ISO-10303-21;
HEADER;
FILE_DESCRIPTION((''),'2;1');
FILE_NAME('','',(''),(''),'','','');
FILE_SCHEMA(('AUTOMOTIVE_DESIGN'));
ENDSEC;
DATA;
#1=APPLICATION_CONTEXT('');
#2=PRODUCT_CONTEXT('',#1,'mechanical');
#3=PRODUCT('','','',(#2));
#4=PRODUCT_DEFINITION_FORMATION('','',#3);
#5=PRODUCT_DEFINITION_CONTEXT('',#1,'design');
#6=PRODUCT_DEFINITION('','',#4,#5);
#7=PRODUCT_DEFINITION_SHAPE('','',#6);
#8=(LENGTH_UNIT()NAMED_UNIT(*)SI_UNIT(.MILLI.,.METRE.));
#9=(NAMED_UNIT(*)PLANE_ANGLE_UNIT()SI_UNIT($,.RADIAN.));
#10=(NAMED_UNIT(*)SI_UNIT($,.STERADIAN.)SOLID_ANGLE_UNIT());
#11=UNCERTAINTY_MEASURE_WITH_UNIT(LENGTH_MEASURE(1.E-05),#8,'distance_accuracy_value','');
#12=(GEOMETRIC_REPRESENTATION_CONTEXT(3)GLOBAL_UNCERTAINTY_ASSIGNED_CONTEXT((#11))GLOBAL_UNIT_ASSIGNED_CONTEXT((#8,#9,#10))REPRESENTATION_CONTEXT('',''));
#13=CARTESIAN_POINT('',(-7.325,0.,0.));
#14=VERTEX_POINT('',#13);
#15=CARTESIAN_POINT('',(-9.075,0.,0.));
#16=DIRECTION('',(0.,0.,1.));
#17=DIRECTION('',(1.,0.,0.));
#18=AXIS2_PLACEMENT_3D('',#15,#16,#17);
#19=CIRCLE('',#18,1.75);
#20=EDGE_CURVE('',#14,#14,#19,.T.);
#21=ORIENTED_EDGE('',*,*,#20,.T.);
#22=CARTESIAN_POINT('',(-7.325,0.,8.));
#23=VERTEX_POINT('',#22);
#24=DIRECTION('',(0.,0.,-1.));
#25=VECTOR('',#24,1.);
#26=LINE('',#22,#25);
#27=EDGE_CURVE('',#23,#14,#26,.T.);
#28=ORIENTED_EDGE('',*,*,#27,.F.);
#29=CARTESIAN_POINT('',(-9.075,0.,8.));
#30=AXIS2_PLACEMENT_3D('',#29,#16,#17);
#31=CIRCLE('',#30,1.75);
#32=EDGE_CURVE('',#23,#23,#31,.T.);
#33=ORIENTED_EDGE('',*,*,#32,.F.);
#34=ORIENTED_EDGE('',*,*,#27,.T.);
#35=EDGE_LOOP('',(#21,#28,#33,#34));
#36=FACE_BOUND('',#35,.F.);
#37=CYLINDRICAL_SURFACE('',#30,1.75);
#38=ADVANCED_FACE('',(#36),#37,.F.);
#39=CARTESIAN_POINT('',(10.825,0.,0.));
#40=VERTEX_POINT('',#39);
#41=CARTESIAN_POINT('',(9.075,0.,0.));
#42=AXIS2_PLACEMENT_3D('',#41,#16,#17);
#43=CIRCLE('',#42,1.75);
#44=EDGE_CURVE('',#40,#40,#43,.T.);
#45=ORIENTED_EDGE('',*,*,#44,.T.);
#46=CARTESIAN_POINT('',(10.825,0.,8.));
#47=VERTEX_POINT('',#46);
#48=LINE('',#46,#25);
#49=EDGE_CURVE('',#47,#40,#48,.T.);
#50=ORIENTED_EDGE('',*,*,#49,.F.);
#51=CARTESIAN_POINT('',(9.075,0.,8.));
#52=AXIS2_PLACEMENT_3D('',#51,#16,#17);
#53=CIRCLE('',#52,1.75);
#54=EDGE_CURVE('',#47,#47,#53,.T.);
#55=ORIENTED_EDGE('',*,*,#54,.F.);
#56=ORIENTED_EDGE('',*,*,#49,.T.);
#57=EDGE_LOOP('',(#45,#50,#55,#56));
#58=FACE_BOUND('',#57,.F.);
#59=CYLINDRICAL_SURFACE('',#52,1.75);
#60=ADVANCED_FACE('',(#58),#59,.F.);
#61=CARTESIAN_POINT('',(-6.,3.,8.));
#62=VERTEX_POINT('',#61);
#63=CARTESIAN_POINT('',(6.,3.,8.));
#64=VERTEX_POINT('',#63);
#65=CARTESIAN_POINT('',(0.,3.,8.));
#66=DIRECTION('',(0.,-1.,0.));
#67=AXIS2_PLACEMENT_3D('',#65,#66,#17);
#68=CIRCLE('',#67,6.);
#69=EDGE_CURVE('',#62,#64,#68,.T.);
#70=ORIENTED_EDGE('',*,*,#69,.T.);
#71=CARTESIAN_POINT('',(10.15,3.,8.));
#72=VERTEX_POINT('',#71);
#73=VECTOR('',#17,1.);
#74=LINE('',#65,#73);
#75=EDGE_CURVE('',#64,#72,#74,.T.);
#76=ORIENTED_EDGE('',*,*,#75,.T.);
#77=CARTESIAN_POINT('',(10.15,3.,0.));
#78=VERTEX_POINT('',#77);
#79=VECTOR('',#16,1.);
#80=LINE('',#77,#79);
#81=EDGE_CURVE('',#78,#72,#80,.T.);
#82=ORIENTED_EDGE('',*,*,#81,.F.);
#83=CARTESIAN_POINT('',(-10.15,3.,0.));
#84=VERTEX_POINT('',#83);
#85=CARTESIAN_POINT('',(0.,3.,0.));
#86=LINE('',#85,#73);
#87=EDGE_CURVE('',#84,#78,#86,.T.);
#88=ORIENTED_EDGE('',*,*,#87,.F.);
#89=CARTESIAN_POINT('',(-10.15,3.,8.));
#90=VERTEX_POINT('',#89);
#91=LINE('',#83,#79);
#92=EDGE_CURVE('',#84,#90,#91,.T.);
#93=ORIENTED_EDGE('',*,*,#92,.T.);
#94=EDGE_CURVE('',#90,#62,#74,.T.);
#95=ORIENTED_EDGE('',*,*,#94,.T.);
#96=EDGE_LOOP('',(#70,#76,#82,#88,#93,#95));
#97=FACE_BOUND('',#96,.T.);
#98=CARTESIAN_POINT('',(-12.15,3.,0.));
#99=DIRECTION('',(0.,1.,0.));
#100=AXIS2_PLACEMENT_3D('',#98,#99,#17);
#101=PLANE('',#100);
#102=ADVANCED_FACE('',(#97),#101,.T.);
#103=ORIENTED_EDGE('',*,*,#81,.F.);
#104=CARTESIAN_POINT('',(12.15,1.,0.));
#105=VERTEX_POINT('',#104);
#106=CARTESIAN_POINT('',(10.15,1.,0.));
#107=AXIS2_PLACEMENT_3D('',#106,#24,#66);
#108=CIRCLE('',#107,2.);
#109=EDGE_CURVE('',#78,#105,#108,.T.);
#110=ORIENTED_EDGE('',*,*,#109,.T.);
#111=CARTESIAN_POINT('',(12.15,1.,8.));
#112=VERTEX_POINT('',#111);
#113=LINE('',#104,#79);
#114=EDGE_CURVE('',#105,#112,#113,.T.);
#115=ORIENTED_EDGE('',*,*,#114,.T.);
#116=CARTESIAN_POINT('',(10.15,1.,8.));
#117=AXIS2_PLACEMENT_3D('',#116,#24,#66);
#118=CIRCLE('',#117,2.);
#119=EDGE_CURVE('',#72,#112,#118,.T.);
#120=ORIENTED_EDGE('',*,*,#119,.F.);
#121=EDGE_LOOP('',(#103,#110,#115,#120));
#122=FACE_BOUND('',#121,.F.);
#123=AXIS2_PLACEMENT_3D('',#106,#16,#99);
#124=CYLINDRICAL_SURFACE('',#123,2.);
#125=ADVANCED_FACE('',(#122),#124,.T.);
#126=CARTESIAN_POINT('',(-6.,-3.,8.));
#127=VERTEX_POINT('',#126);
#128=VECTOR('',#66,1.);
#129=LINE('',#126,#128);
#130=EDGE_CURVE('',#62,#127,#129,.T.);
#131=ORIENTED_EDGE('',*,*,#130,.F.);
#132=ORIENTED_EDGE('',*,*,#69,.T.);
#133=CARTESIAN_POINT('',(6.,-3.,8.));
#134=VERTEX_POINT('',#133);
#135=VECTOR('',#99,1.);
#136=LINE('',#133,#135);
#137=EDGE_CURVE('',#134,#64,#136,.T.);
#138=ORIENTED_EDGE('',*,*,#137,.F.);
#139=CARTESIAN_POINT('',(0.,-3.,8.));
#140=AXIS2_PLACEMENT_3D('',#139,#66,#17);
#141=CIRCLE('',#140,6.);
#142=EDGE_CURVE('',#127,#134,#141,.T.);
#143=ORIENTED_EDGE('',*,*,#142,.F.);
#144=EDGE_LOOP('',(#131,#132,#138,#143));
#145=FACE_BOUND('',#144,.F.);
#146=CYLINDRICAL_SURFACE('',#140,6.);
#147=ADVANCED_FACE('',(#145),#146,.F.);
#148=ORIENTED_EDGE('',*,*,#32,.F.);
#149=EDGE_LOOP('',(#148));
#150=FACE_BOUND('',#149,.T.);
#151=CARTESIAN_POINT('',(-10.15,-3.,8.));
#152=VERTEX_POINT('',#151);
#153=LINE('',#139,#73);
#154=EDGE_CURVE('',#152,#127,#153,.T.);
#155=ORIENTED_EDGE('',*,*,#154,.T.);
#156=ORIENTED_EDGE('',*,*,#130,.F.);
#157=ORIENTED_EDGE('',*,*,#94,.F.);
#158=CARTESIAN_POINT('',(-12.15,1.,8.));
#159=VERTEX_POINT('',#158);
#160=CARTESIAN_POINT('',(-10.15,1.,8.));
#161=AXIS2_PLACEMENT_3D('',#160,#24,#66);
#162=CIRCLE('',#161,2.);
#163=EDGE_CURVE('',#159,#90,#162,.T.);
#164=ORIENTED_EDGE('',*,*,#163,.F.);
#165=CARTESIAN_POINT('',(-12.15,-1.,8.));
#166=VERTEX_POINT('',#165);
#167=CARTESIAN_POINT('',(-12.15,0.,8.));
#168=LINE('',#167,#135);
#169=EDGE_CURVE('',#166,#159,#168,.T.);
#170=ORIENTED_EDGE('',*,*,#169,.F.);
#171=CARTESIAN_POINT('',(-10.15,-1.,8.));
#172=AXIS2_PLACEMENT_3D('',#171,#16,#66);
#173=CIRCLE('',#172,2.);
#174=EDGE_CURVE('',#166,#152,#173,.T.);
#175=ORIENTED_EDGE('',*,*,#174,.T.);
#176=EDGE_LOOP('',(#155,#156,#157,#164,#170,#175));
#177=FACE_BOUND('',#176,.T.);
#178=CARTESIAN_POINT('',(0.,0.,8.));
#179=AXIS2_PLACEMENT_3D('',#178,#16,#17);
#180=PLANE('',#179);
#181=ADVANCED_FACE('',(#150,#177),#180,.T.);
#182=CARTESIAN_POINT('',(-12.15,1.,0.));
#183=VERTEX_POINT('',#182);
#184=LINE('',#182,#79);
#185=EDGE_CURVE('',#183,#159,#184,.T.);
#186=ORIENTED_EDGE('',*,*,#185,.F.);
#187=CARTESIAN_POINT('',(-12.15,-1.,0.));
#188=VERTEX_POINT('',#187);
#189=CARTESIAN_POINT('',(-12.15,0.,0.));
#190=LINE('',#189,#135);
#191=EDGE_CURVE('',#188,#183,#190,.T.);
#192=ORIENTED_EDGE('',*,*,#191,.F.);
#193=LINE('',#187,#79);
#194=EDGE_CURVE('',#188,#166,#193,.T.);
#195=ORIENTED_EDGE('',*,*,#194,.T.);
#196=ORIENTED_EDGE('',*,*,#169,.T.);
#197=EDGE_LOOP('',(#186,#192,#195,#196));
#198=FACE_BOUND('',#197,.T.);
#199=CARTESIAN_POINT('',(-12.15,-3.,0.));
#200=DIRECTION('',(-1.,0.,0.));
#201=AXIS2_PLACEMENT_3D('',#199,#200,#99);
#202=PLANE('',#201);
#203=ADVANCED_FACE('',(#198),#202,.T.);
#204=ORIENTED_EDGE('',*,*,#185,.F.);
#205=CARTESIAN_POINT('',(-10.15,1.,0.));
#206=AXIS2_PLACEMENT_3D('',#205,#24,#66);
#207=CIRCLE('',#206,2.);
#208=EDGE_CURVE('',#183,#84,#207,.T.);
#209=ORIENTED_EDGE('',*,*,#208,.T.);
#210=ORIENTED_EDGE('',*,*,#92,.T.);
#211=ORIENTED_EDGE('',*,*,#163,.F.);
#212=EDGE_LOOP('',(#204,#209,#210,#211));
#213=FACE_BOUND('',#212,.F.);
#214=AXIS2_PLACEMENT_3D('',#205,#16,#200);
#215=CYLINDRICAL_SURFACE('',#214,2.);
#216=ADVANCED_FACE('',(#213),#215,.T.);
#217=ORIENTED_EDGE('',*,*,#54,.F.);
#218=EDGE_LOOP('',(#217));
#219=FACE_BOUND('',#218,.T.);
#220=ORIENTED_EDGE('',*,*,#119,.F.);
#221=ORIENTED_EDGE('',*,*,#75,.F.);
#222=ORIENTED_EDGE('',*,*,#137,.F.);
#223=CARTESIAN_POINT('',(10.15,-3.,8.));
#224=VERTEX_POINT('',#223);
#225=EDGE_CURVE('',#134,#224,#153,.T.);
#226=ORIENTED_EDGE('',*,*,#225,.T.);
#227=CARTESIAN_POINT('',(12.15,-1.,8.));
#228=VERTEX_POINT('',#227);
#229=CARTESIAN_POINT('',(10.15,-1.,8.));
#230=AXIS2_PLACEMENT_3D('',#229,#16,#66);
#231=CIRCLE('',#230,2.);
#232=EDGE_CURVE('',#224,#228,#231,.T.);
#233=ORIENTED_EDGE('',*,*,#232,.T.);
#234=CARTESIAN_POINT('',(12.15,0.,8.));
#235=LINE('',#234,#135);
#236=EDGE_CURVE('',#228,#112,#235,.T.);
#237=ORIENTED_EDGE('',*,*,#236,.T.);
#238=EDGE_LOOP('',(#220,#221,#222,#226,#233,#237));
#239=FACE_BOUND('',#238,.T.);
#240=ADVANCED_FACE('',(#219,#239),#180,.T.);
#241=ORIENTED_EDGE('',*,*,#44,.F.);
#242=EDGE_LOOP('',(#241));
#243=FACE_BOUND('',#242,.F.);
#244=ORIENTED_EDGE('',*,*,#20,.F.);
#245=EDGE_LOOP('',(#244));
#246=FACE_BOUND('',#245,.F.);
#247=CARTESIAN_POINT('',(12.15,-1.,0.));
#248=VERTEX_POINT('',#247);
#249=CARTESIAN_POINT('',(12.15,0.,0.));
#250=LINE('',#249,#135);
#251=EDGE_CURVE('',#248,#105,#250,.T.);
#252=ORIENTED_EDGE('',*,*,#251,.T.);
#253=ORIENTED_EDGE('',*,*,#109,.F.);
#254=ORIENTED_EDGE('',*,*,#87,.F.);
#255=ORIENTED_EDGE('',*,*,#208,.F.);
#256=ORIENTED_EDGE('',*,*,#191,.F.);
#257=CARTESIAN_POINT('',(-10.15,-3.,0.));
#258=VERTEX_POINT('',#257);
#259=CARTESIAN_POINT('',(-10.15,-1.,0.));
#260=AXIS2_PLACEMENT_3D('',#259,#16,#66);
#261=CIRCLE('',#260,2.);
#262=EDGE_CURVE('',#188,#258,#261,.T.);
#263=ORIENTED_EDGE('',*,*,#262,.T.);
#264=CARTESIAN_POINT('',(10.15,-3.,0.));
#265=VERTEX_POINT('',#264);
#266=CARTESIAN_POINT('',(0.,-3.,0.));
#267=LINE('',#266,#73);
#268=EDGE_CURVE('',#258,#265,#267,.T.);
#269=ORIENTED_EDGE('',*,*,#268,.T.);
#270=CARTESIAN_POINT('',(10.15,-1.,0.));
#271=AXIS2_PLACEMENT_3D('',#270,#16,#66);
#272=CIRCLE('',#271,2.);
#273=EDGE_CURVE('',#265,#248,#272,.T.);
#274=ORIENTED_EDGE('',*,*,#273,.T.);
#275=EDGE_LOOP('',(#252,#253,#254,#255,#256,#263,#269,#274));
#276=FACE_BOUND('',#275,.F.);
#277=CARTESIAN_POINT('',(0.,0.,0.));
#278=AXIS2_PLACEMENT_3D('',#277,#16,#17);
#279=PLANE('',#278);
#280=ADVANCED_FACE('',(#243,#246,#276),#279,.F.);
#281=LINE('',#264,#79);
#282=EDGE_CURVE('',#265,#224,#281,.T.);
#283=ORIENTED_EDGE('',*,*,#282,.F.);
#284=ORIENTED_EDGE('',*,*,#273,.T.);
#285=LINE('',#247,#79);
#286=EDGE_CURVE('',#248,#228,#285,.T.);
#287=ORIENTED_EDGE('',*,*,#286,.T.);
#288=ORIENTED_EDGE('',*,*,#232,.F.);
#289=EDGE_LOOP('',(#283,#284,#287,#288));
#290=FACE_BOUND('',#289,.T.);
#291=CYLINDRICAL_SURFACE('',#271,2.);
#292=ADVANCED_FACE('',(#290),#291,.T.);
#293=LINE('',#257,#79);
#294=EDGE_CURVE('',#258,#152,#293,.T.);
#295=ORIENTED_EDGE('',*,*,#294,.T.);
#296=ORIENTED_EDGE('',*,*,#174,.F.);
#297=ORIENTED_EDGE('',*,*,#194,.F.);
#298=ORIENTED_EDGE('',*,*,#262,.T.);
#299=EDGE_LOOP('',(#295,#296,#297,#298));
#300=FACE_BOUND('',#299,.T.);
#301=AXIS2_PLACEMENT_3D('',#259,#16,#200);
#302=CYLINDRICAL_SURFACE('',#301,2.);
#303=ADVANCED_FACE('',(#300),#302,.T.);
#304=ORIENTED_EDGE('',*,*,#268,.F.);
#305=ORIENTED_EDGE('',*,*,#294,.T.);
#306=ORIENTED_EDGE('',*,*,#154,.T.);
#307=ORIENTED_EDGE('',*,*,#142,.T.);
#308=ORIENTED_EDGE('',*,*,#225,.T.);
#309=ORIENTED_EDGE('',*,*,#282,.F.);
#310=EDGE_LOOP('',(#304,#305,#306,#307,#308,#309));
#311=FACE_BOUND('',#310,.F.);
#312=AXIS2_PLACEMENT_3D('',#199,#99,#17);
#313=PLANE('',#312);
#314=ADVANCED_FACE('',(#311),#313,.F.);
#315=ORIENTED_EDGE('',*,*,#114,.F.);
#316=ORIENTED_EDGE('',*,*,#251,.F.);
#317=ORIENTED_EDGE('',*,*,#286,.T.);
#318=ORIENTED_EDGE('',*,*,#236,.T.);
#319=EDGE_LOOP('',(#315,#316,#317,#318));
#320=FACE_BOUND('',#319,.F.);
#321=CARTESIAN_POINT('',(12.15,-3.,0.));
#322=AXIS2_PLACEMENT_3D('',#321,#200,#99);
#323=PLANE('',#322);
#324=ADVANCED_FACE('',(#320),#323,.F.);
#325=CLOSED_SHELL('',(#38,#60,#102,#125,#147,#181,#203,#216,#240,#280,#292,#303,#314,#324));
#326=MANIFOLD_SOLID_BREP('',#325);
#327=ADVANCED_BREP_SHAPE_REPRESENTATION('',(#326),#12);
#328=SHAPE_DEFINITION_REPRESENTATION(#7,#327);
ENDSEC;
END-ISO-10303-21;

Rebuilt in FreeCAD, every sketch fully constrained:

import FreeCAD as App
import Part
import Sketcher


def edges_at(feature, points):
    """Names of the edges that pass closest to the given points."""
    edges = feature.Shape.Edges
    near = lambda p: min(range(len(edges)), key=lambda i: edges[i].distToShape(Part.Vertex(*p))[0])
    return sorted({f"Edge{near(p) + 1}" for p in points})


def add_polygon(sketch, points):
    """Adds a closed chain of lines whose ends are joined by coincident constraints."""
    first, n = sketch.GeometryCount, len(points)
    for a, b in zip(points, points[1:] + points[:1]):
        sketch.addGeometry(Part.LineSegment(App.Vector(*a, 0), App.Vector(*b, 0)), False)
    for i in range(n):
        sketch.addConstraint(Sketcher.Constraint("Coincident", first + i, 2, first + (i + 1) % n, 1))

doc = App.newDocument("Part")
body = doc.addObject("PartDesign::Body", "Body")

sketch1 = body.newObject("Sketcher::SketchObject", "Sketch")
sketch1.AttachmentSupport = (doc.getObject("XY_Plane"), [""])
sketch1.MapMode = "FlatFace"
add_polygon(sketch1, [(-12, 3), (-12, -3), (12, -3), (12, 3)])
sketch1.addConstraint([
    Sketcher.Constraint("Vertical", 0),
    Sketcher.Constraint("Horizontal", 1),
    Sketcher.Constraint("Vertical", 2),
    Sketcher.Constraint("Horizontal", 3),
    Sketcher.Constraint("Symmetric", 0, 2, 2, 2, -1, 1),
    Sketcher.Constraint("DistanceY", 0, 2, 0, 1, 6.0),
    Sketcher.Constraint("DistanceX", 1, 1, 1, 2, 24.3),
])
pad1 = body.newObject("PartDesign::Pad", "Pad")
pad1.Profile = sketch1
pad1.Length = 8

sketch2 = body.newObject("Sketcher::SketchObject", "Sketch001")
sketch2.AttachmentSupport = (doc.getObject("XZ_Plane"), [""])
sketch2.MapMode = "FlatFace"
sketch2.AttachmentOffset = App.Placement(App.Vector(0, 0, 3), App.Rotation())
sketch2.addGeometry(Part.Circle(App.Vector(0, 8, 0), App.Vector(0, 0, 1), 6), False)
sketch2.addConstraint([
    Sketcher.Constraint("PointOnObject", 0, 3, -2),
    Sketcher.Constraint("Diameter", 0, 12.0),
    Sketcher.Constraint("DistanceY", -1, 1, 0, 3, 8.0),
])
pocket1 = body.newObject("PartDesign::Pocket", "Pocket")
pocket1.Profile = sketch2
pocket1.Type = "ThroughAll"

sketch3 = body.newObject("Sketcher::SketchObject", "Sketch002")
sketch3.AttachmentSupport = (doc.getObject("XY_Plane"), [""])
sketch3.MapMode = "FlatFace"
sketch3.AttachmentOffset = App.Placement(App.Vector(0, 0, 8), App.Rotation())
sketch3.addGeometry([
    Part.Circle(App.Vector(-9.1, 0, 0), App.Vector(0, 0, 1), 1.8),
    Part.Circle(App.Vector(9.1, 0, 0), App.Vector(0, 0, 1), 1.8),
], False)
sketch3.addConstraint([
    Sketcher.Constraint("Equal", 0, 1),
    Sketcher.Constraint("Symmetric", 0, 3, 1, 3, -1, 1),
    Sketcher.Constraint("PointOnObject", 0, 3, -1),
    Sketcher.Constraint("Diameter", 0, 3.5),
    Sketcher.Constraint("DistanceX", 0, 3, 1, 3, 18.15),
])
pocket2 = body.newObject("PartDesign::Pocket", "Pocket001")
pocket2.Profile = sketch3
pocket2.Type = "ThroughAll"
doc.recompute()

fillet = body.newObject("PartDesign::Fillet", "Fillet")
fillet.Base = (pocket2, edges_at(pocket2, [
    (-12.15, -3, 4),
    (-12.15, 3, 4),
    (12.15, -3, 4),
    (12.15, 3, 4),
]))
fillet.Radius = 2

doc.recompute()
